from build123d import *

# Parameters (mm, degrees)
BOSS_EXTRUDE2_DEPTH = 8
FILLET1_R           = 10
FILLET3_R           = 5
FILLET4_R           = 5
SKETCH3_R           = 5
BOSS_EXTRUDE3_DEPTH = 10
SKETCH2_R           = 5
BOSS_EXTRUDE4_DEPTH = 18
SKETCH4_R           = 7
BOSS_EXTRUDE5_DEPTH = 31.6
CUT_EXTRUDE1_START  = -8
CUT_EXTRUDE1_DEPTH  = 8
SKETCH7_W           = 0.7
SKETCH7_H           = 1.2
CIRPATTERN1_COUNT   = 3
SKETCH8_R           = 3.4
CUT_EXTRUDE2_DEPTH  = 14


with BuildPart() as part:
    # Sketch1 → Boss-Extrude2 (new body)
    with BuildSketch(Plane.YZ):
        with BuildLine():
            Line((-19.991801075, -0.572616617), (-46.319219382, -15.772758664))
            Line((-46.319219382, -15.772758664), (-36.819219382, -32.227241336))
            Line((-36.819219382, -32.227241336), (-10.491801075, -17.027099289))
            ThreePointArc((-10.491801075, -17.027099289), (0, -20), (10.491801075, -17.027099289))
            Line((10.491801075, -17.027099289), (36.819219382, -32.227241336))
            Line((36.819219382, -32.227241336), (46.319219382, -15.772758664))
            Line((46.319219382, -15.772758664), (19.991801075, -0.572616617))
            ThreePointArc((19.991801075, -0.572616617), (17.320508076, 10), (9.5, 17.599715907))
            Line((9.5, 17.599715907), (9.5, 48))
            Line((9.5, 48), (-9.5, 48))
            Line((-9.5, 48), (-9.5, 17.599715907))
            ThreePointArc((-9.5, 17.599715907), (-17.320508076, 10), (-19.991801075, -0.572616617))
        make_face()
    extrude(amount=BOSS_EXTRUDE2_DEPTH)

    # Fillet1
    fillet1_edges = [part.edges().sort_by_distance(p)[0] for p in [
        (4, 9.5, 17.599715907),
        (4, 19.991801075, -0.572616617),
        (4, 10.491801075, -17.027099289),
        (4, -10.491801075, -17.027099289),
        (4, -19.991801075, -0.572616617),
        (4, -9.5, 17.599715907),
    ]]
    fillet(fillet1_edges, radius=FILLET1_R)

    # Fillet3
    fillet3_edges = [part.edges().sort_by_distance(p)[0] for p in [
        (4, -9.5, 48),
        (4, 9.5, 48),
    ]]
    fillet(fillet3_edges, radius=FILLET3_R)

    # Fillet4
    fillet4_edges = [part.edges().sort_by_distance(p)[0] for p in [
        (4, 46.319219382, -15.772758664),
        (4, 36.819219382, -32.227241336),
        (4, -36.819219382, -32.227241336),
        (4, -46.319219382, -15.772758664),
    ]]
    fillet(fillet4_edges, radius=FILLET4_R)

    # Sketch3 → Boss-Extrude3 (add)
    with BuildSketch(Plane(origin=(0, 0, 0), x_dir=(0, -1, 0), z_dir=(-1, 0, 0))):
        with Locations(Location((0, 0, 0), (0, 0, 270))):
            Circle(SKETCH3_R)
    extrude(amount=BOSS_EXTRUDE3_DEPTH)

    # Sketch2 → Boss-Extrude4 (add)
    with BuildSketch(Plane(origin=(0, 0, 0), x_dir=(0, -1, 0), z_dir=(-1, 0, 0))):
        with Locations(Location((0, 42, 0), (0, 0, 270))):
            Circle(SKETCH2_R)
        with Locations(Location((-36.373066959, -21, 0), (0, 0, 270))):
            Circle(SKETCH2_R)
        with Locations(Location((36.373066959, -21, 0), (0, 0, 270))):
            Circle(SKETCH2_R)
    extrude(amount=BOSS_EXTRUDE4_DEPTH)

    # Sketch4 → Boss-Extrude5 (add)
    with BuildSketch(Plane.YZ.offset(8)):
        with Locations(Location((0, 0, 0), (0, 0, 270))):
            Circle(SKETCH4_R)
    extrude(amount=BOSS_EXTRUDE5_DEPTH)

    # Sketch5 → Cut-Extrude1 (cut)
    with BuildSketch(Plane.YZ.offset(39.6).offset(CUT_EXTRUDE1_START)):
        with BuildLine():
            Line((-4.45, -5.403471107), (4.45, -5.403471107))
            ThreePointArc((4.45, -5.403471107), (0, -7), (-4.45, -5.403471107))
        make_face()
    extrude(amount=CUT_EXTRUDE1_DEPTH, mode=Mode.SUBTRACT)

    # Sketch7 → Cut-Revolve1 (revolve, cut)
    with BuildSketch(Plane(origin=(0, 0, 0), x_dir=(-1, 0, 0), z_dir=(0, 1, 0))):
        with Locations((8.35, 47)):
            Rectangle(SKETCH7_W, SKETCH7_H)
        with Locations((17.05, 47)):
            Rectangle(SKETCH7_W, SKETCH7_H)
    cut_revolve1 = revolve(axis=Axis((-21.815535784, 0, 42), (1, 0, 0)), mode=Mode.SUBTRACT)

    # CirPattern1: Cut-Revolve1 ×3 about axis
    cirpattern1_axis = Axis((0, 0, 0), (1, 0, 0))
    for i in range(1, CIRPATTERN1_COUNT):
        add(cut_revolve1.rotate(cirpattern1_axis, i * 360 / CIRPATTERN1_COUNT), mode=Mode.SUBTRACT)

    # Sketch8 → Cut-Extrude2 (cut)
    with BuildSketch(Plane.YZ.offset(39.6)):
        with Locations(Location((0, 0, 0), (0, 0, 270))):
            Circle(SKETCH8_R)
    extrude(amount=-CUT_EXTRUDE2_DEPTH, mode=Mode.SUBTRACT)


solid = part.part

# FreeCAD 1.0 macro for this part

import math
import FreeCAD as App
import Part
import Sketcher
from FreeCAD import Vector
Q = App.Units.Quantity


def edges_at(feature, points):
    """Names of the edges that pass closest to the given points."""
    edges = feature.Shape.Edges
    near = lambda p: min(range(len(edges)), key=lambda i: edges[i].distToShape(Part.Vertex(*p))[0])
    return sorted({f"Edge{near(p) + 1}" for p in points})


def add_polygon(sketch, points):
    """Adds a closed chain of lines whose ends are joined by coincident constraints."""
    first, n = sketch.GeometryCount, len(points)
    for a, b in zip(points, points[1:] + points[:1]):
        sketch.addGeometry(Part.LineSegment(App.Vector(*a, 0), App.Vector(*b, 0)), False)
    for i in range(n):
        sketch.addConstraint(Sketcher.Constraint("Coincident", first + i, 2, first + (i + 1) % n, 1))

doc = App.newDocument("Part")
body = doc.addObject("PartDesign::Body", "Body")

# Sketch on YZ plane
sketch1 = doc.addObject("Sketcher::SketchObject", "Sketch")
body.addObject(sketch1)
sketch1.AttachmentSupport = (doc.YZ_Plane, [""])
sketch1.MapMode = "FlatFace"
sketch1.addGeometry([
    Part.LineSegment(Vector(-20, -1, 0), Vector(-46, -16, 0)),  # 0
    Part.LineSegment(Vector(-46, -16, 0), Vector(-37, -32, 0)),  # 1
    Part.LineSegment(Vector(-37, -32, 0), Vector(-10, -17, 0)),  # 2
    Part.ArcOfCircle(Part.Circle(Vector(0, 0, 0), Vector(0, 0, 1), 20), math.radians(-122), math.radians(-58)),  # 3
    Part.LineSegment(Vector(10, -17, 0), Vector(37, -32, 0)),  # 4
    Part.LineSegment(Vector(37, -32, 0), Vector(46, -16, 0)),  # 5
    Part.LineSegment(Vector(46, -16, 0), Vector(20, -1, 0)),  # 6
    Part.ArcOfCircle(Part.Circle(Vector(0, 0, 0), Vector(0, 0, 1), 20), math.radians(-2), math.radians(62)),  # 7
    Part.LineSegment(Vector(10, 18, 0), Vector(10, 48, 0)),  # 8
    Part.LineSegment(Vector(10, 48, 0), Vector(-10, 48, 0)),  # 9
    Part.LineSegment(Vector(-10, 48, 0), Vector(-10, 18, 0)),  # 10
    Part.ArcOfCircle(Part.Circle(Vector(0, 0, 0), Vector(0, 0, 1), 20), math.radians(118), math.radians(182)),  # 11
], False)
sketch1.addConstraint([
    Sketcher.Constraint("Coincident", 0, 2, 1, 1),
    Sketcher.Constraint("Coincident", 1, 2, 2, 1),
    Sketcher.Constraint("Coincident", 2, 2, 3, 1),
    Sketcher.Constraint("Coincident", 3, 2, 4, 1),
    Sketcher.Constraint("Coincident", 4, 2, 5, 1),
    Sketcher.Constraint("Coincident", 5, 2, 6, 1),
    Sketcher.Constraint("Coincident", 6, 2, 7, 1),
    Sketcher.Constraint("Coincident", 7, 2, 8, 1),
    Sketcher.Constraint("Coincident", 8, 2, 9, 1),
    Sketcher.Constraint("Coincident", 9, 2, 10, 1),
    Sketcher.Constraint("Coincident", 10, 2, 11, 1),
    Sketcher.Constraint("Coincident", 11, 2, 0, 1),
    Sketcher.Constraint("Vertical", 8),
    Sketcher.Constraint("Horizontal", 9),
    Sketcher.Constraint("Vertical", 10),
    Sketcher.Constraint("Coincident", 3, 3, -1, 1),
    Sketcher.Constraint("Coincident", 7, 3, -1, 1),
    Sketcher.Constraint("Coincident", 11, 3, -1, 1),
    Sketcher.Constraint("Equal", 3, 7),
    Sketcher.Constraint("Equal", 7, 11),
    Sketcher.Constraint("Symmetric", 1, 2, 4, 2, -2),
    Sketcher.Constraint("Symmetric", 0, 2, 5, 2, -2),
    Sketcher.Constraint("Perpendicular", 0, 1),
    Sketcher.Constraint("Perpendicular", 1, 2),
    Sketcher.Constraint("Perpendicular", 4, 5),
    Sketcher.Constraint("Perpendicular", 5, 6),
    Sketcher.Constraint("Horizontal", 7, 2, 10, 2),
    Sketcher.Constraint("Equal", 0, 2),
    Sketcher.Constraint("Radius", 3, Q("20 mm")),
    Sketcher.Constraint("DistanceX", 9, 2, 9, 1, Q("19 mm")),
    Sketcher.Constraint("Angle", 0, Q("-150 deg")),
    Sketcher.Constraint("Distance", 1, Q("19 mm")),
    Sketcher.Constraint("DistanceY", -1, 1, 8, 2, Q("48 mm")),
    Sketcher.Constraint("DistanceX", 0, 2, -1, 1, Q("46.319219 mm")),
])
pad1 = doc.addObject("PartDesign::Pad", "Pad")
body.addObject(pad1)
pad1.Profile = sketch1
pad1.Length = 8
doc.recompute()

fillet = doc.addObject("PartDesign::Fillet", "Fillet")
body.addObject(fillet)
fillet.Base = (pad1, edges_at(pad1, [
    (4, 9.5, 17.6),
    (4, 19.992, -0.573),
    (4, 10.492, -17.027),
    (4, -10.492, -17.027),
    (4, -19.992, -0.573),
    (4, -9.5, 17.6),
]))
fillet.Radius = 10
doc.recompute()

fillet2 = doc.addObject("PartDesign::Fillet", "Fillet001")
body.addObject(fillet2)
fillet2.Base = (fillet, edges_at(fillet, [(4, -9.5, 48), (4, 9.5, 48)]))
fillet2.Radius = 5
doc.recompute()

fillet3 = doc.addObject("PartDesign::Fillet", "Fillet002")
body.addObject(fillet3)
fillet3.Base = (fillet2, edges_at(fillet2, [
    (4, 46.319, -15.773),
    (4, 36.819, -32.227),
    (4, -36.819, -32.227),
    (4, -46.319, -15.773),
]))
fillet3.Radius = 5

# Sketch on YZ plane
sketch2 = doc.addObject("Sketcher::SketchObject", "Sketch001")
body.addObject(sketch2)
sketch2.AttachmentSupport = (doc.YZ_Plane, [""])
sketch2.MapMode = "FlatFace"
sketch2.addGeometry(Part.Circle(Vector(0, 0, 0), Vector(0, 0, 1), 5), False)
sketch2.addConstraint([
    Sketcher.Constraint("Coincident", 0, 3, -1, 1),
    Sketcher.Constraint("Diameter", 0, Q("10 mm")),
])
pad2 = doc.addObject("PartDesign::Pad", "Pad001")
body.addObject(pad2)
pad2.Profile = sketch2
pad2.Length = 10
pad2.Reversed = True

# Sketch on YZ plane
sketch3 = doc.addObject("Sketcher::SketchObject", "Sketch002")
body.addObject(sketch3)
sketch3.AttachmentSupport = (doc.YZ_Plane, [""])
sketch3.MapMode = "FlatFace"
sketch3.addGeometry([
    Part.Circle(Vector(0, 42, 0), Vector(0, 0, 1), 5),
    Part.Circle(Vector(36, -21, 0), Vector(0, 0, 1), 5),
    Part.Circle(Vector(-36, -21, 0), Vector(0, 0, 1), 5),
], False)
sketch3.addConstraint([
    Sketcher.Constraint("Equal", 0, 1),
    Sketcher.Constraint("Equal", 1, 2),
    Sketcher.Constraint("Symmetric", 1, 3, 2, 3, -2),
    Sketcher.Constraint("PointOnObject", 0, 3, -2),
    Sketcher.Constraint("Diameter", 0, Q("10 mm")),
    Sketcher.Constraint("DistanceY", -1, 1, 0, 3, Q("42 mm")),
    Sketcher.Constraint("DistanceY", 1, 3, -1, 1, Q("21 mm")),
    Sketcher.Constraint("DistanceX", -1, 1, 1, 3, Q("36.373067 mm")),
])
pad3 = doc.addObject("PartDesign::Pad", "Pad002")
body.addObject(pad3)
pad3.Profile = sketch3
pad3.Length = 18
pad3.Reversed = True

# Sketch on YZ plane
sketch4 = doc.addObject("Sketcher::SketchObject", "Sketch003")
body.addObject(sketch4)
sketch4.AttachmentSupport = (doc.YZ_Plane, [""])
sketch4.MapMode = "FlatFace"
sketch4.AttachmentOffset = App.Placement(Vector(0, 0, 8), App.Rotation())
sketch4.addGeometry(Part.Circle(Vector(0, 0, 0), Vector(0, 0, 1), 7), False)
sketch4.addConstraint([
    Sketcher.Constraint("Coincident", 0, 3, -1, 1),
    Sketcher.Constraint("Diameter", 0, Q("14 mm")),
])
pad4 = doc.addObject("PartDesign::Pad", "Pad003")
body.addObject(pad4)
pad4.Profile = sketch4
pad4.Length = 31.6

# Sketch on YZ plane
sketch5 = doc.addObject("Sketcher::SketchObject", "Sketch004")
body.addObject(sketch5)
sketch5.AttachmentSupport = (doc.YZ_Plane, [""])
sketch5.MapMode = "FlatFace"
sketch5.AttachmentOffset = App.Placement(Vector(0, 0, 31.6), App.Rotation())
sketch5.addGeometry([
    Part.LineSegment(Vector(4, -5, 0), Vector(-4, -5, 0)),
    Part.ArcOfCircle(Part.Circle(Vector(0, 0, 0), Vector(0, 0, 1), 7), math.radians(-129), math.radians(-51)),
], False)
sketch5.addConstraint([
    Sketcher.Constraint("Coincident", 0, 1, 1, 2),
    Sketcher.Constraint("Coincident", 1, 1, 0, 2),
    Sketcher.Constraint("Horizontal", 0),
    Sketcher.Constraint("Coincident", 1, 3, -1, 1),
    Sketcher.Constraint("Radius", 1, Q("7 mm")),
    Sketcher.Constraint("DistanceX", 0, 2, 0, 1, Q("8.9 mm")),
])
pocket1 = doc.addObject("PartDesign::Pocket", "Pocket")
body.addObject(pocket1)
pocket1.Profile = sketch5
pocket1.Length = 8
pocket1.Reversed = True

# Sketch on XZ plane
sketch6 = doc.addObject("Sketcher::SketchObject", "Sketch005")
body.addObject(sketch6)
sketch6.AttachmentSupport = (doc.XZ_Plane, [""])
sketch6.MapMode = "FlatFace"
add_polygon(sketch6, [(-8, 47.6), (-8, 46.4), (-8.7, 46.4), (-8.7, 47.6)])  # lines 0-3
add_polygon(sketch6, [(-16.7, 47.6), (-16.7, 46.4), (-17.4, 46.4), (-17.4, 47.6)])  # lines 4-7
sketch6.addGeometry(Part.LineSegment(Vector(-17.4, 42, 0), Vector(-8, 42, 0)), True)  # axis
sketch6.addConstraint([
    Sketcher.Constraint("Vertical", 0),
    Sketcher.Constraint("Horizontal", 1),
    Sketcher.Constraint("Vertical", 2),
    Sketcher.Constraint("Horizontal", 3),
    Sketcher.Constraint("Vertical", 4),
    Sketcher.Constraint("Horizontal", 5),
    Sketcher.Constraint("Vertical", 6),
    Sketcher.Constraint("Horizontal", 7),
    Sketcher.Constraint("Horizontal", 8),
    Sketcher.Constraint("Horizontal", 1, 2, 4, 2),
    Sketcher.Constraint("Horizontal", 3, 2, 6, 2),
    Sketcher.Constraint("Vertical", 6, 2, 8, 1),
    Sketcher.Constraint("Vertical", 3, 2, 8, 2),
    Sketcher.Constraint("Equal", 3, 5),
    Sketcher.Constraint("DistanceX", 1, 2, 1, 1, Q("0.7 mm")),
    Sketcher.Constraint("DistanceX", 8, 1, 8, 2, Q("9.4 mm")),
    Sketcher.Constraint("DistanceY", 0, 2, 0, 1, Q("1.2 mm")),
    Sketcher.Constraint("DistanceX", 0, 2, -1, 1, Q("8 mm")),
    Sketcher.Constraint("DistanceY", -1, 1, 8, 1, Q("42 mm")),
    Sketcher.Constraint("DistanceY", -1, 1, 0, 2, Q("46.4 mm")),
])
groove = doc.addObject("PartDesign::Groove", "Groove")
body.addObject(groove)
groove.Profile = sketch6
groove.ReferenceAxis = (sketch6, ["Axis0"])
groove.Angle = 360
doc.recompute()

polarpattern = doc.addObject("PartDesign::PolarPattern", "PolarPattern")
body.addObject(polarpattern)
polarpattern.Originals = [groove]
polarpattern.Axis = (doc.X_Axis, [""])
polarpattern.Angle = 360
polarpattern.Occurrences = 3
body.Tip = polarpattern

# Sketch on YZ plane
sketch7 = doc.addObject("Sketcher::SketchObject", "Sketch006")
body.addObject(sketch7)
sketch7.AttachmentSupport = (doc.YZ_Plane, [""])
sketch7.MapMode = "FlatFace"
sketch7.AttachmentOffset = App.Placement(Vector(0, 0, 39.6), App.Rotation())
sketch7.addGeometry(Part.Circle(Vector(0, 0, 0), Vector(0, 0, 1), 3.4), False)
sketch7.addConstraint([
    Sketcher.Constraint("Coincident", 0, 3, -1, 1),
    Sketcher.Constraint("Diameter", 0, Q("6.8 mm")),
])
pocket2 = doc.addObject("PartDesign::Pocket", "Pocket001")
body.addObject(pocket2)
pocket2.Profile = sketch7
pocket2.Length = 14

doc.recompute()
